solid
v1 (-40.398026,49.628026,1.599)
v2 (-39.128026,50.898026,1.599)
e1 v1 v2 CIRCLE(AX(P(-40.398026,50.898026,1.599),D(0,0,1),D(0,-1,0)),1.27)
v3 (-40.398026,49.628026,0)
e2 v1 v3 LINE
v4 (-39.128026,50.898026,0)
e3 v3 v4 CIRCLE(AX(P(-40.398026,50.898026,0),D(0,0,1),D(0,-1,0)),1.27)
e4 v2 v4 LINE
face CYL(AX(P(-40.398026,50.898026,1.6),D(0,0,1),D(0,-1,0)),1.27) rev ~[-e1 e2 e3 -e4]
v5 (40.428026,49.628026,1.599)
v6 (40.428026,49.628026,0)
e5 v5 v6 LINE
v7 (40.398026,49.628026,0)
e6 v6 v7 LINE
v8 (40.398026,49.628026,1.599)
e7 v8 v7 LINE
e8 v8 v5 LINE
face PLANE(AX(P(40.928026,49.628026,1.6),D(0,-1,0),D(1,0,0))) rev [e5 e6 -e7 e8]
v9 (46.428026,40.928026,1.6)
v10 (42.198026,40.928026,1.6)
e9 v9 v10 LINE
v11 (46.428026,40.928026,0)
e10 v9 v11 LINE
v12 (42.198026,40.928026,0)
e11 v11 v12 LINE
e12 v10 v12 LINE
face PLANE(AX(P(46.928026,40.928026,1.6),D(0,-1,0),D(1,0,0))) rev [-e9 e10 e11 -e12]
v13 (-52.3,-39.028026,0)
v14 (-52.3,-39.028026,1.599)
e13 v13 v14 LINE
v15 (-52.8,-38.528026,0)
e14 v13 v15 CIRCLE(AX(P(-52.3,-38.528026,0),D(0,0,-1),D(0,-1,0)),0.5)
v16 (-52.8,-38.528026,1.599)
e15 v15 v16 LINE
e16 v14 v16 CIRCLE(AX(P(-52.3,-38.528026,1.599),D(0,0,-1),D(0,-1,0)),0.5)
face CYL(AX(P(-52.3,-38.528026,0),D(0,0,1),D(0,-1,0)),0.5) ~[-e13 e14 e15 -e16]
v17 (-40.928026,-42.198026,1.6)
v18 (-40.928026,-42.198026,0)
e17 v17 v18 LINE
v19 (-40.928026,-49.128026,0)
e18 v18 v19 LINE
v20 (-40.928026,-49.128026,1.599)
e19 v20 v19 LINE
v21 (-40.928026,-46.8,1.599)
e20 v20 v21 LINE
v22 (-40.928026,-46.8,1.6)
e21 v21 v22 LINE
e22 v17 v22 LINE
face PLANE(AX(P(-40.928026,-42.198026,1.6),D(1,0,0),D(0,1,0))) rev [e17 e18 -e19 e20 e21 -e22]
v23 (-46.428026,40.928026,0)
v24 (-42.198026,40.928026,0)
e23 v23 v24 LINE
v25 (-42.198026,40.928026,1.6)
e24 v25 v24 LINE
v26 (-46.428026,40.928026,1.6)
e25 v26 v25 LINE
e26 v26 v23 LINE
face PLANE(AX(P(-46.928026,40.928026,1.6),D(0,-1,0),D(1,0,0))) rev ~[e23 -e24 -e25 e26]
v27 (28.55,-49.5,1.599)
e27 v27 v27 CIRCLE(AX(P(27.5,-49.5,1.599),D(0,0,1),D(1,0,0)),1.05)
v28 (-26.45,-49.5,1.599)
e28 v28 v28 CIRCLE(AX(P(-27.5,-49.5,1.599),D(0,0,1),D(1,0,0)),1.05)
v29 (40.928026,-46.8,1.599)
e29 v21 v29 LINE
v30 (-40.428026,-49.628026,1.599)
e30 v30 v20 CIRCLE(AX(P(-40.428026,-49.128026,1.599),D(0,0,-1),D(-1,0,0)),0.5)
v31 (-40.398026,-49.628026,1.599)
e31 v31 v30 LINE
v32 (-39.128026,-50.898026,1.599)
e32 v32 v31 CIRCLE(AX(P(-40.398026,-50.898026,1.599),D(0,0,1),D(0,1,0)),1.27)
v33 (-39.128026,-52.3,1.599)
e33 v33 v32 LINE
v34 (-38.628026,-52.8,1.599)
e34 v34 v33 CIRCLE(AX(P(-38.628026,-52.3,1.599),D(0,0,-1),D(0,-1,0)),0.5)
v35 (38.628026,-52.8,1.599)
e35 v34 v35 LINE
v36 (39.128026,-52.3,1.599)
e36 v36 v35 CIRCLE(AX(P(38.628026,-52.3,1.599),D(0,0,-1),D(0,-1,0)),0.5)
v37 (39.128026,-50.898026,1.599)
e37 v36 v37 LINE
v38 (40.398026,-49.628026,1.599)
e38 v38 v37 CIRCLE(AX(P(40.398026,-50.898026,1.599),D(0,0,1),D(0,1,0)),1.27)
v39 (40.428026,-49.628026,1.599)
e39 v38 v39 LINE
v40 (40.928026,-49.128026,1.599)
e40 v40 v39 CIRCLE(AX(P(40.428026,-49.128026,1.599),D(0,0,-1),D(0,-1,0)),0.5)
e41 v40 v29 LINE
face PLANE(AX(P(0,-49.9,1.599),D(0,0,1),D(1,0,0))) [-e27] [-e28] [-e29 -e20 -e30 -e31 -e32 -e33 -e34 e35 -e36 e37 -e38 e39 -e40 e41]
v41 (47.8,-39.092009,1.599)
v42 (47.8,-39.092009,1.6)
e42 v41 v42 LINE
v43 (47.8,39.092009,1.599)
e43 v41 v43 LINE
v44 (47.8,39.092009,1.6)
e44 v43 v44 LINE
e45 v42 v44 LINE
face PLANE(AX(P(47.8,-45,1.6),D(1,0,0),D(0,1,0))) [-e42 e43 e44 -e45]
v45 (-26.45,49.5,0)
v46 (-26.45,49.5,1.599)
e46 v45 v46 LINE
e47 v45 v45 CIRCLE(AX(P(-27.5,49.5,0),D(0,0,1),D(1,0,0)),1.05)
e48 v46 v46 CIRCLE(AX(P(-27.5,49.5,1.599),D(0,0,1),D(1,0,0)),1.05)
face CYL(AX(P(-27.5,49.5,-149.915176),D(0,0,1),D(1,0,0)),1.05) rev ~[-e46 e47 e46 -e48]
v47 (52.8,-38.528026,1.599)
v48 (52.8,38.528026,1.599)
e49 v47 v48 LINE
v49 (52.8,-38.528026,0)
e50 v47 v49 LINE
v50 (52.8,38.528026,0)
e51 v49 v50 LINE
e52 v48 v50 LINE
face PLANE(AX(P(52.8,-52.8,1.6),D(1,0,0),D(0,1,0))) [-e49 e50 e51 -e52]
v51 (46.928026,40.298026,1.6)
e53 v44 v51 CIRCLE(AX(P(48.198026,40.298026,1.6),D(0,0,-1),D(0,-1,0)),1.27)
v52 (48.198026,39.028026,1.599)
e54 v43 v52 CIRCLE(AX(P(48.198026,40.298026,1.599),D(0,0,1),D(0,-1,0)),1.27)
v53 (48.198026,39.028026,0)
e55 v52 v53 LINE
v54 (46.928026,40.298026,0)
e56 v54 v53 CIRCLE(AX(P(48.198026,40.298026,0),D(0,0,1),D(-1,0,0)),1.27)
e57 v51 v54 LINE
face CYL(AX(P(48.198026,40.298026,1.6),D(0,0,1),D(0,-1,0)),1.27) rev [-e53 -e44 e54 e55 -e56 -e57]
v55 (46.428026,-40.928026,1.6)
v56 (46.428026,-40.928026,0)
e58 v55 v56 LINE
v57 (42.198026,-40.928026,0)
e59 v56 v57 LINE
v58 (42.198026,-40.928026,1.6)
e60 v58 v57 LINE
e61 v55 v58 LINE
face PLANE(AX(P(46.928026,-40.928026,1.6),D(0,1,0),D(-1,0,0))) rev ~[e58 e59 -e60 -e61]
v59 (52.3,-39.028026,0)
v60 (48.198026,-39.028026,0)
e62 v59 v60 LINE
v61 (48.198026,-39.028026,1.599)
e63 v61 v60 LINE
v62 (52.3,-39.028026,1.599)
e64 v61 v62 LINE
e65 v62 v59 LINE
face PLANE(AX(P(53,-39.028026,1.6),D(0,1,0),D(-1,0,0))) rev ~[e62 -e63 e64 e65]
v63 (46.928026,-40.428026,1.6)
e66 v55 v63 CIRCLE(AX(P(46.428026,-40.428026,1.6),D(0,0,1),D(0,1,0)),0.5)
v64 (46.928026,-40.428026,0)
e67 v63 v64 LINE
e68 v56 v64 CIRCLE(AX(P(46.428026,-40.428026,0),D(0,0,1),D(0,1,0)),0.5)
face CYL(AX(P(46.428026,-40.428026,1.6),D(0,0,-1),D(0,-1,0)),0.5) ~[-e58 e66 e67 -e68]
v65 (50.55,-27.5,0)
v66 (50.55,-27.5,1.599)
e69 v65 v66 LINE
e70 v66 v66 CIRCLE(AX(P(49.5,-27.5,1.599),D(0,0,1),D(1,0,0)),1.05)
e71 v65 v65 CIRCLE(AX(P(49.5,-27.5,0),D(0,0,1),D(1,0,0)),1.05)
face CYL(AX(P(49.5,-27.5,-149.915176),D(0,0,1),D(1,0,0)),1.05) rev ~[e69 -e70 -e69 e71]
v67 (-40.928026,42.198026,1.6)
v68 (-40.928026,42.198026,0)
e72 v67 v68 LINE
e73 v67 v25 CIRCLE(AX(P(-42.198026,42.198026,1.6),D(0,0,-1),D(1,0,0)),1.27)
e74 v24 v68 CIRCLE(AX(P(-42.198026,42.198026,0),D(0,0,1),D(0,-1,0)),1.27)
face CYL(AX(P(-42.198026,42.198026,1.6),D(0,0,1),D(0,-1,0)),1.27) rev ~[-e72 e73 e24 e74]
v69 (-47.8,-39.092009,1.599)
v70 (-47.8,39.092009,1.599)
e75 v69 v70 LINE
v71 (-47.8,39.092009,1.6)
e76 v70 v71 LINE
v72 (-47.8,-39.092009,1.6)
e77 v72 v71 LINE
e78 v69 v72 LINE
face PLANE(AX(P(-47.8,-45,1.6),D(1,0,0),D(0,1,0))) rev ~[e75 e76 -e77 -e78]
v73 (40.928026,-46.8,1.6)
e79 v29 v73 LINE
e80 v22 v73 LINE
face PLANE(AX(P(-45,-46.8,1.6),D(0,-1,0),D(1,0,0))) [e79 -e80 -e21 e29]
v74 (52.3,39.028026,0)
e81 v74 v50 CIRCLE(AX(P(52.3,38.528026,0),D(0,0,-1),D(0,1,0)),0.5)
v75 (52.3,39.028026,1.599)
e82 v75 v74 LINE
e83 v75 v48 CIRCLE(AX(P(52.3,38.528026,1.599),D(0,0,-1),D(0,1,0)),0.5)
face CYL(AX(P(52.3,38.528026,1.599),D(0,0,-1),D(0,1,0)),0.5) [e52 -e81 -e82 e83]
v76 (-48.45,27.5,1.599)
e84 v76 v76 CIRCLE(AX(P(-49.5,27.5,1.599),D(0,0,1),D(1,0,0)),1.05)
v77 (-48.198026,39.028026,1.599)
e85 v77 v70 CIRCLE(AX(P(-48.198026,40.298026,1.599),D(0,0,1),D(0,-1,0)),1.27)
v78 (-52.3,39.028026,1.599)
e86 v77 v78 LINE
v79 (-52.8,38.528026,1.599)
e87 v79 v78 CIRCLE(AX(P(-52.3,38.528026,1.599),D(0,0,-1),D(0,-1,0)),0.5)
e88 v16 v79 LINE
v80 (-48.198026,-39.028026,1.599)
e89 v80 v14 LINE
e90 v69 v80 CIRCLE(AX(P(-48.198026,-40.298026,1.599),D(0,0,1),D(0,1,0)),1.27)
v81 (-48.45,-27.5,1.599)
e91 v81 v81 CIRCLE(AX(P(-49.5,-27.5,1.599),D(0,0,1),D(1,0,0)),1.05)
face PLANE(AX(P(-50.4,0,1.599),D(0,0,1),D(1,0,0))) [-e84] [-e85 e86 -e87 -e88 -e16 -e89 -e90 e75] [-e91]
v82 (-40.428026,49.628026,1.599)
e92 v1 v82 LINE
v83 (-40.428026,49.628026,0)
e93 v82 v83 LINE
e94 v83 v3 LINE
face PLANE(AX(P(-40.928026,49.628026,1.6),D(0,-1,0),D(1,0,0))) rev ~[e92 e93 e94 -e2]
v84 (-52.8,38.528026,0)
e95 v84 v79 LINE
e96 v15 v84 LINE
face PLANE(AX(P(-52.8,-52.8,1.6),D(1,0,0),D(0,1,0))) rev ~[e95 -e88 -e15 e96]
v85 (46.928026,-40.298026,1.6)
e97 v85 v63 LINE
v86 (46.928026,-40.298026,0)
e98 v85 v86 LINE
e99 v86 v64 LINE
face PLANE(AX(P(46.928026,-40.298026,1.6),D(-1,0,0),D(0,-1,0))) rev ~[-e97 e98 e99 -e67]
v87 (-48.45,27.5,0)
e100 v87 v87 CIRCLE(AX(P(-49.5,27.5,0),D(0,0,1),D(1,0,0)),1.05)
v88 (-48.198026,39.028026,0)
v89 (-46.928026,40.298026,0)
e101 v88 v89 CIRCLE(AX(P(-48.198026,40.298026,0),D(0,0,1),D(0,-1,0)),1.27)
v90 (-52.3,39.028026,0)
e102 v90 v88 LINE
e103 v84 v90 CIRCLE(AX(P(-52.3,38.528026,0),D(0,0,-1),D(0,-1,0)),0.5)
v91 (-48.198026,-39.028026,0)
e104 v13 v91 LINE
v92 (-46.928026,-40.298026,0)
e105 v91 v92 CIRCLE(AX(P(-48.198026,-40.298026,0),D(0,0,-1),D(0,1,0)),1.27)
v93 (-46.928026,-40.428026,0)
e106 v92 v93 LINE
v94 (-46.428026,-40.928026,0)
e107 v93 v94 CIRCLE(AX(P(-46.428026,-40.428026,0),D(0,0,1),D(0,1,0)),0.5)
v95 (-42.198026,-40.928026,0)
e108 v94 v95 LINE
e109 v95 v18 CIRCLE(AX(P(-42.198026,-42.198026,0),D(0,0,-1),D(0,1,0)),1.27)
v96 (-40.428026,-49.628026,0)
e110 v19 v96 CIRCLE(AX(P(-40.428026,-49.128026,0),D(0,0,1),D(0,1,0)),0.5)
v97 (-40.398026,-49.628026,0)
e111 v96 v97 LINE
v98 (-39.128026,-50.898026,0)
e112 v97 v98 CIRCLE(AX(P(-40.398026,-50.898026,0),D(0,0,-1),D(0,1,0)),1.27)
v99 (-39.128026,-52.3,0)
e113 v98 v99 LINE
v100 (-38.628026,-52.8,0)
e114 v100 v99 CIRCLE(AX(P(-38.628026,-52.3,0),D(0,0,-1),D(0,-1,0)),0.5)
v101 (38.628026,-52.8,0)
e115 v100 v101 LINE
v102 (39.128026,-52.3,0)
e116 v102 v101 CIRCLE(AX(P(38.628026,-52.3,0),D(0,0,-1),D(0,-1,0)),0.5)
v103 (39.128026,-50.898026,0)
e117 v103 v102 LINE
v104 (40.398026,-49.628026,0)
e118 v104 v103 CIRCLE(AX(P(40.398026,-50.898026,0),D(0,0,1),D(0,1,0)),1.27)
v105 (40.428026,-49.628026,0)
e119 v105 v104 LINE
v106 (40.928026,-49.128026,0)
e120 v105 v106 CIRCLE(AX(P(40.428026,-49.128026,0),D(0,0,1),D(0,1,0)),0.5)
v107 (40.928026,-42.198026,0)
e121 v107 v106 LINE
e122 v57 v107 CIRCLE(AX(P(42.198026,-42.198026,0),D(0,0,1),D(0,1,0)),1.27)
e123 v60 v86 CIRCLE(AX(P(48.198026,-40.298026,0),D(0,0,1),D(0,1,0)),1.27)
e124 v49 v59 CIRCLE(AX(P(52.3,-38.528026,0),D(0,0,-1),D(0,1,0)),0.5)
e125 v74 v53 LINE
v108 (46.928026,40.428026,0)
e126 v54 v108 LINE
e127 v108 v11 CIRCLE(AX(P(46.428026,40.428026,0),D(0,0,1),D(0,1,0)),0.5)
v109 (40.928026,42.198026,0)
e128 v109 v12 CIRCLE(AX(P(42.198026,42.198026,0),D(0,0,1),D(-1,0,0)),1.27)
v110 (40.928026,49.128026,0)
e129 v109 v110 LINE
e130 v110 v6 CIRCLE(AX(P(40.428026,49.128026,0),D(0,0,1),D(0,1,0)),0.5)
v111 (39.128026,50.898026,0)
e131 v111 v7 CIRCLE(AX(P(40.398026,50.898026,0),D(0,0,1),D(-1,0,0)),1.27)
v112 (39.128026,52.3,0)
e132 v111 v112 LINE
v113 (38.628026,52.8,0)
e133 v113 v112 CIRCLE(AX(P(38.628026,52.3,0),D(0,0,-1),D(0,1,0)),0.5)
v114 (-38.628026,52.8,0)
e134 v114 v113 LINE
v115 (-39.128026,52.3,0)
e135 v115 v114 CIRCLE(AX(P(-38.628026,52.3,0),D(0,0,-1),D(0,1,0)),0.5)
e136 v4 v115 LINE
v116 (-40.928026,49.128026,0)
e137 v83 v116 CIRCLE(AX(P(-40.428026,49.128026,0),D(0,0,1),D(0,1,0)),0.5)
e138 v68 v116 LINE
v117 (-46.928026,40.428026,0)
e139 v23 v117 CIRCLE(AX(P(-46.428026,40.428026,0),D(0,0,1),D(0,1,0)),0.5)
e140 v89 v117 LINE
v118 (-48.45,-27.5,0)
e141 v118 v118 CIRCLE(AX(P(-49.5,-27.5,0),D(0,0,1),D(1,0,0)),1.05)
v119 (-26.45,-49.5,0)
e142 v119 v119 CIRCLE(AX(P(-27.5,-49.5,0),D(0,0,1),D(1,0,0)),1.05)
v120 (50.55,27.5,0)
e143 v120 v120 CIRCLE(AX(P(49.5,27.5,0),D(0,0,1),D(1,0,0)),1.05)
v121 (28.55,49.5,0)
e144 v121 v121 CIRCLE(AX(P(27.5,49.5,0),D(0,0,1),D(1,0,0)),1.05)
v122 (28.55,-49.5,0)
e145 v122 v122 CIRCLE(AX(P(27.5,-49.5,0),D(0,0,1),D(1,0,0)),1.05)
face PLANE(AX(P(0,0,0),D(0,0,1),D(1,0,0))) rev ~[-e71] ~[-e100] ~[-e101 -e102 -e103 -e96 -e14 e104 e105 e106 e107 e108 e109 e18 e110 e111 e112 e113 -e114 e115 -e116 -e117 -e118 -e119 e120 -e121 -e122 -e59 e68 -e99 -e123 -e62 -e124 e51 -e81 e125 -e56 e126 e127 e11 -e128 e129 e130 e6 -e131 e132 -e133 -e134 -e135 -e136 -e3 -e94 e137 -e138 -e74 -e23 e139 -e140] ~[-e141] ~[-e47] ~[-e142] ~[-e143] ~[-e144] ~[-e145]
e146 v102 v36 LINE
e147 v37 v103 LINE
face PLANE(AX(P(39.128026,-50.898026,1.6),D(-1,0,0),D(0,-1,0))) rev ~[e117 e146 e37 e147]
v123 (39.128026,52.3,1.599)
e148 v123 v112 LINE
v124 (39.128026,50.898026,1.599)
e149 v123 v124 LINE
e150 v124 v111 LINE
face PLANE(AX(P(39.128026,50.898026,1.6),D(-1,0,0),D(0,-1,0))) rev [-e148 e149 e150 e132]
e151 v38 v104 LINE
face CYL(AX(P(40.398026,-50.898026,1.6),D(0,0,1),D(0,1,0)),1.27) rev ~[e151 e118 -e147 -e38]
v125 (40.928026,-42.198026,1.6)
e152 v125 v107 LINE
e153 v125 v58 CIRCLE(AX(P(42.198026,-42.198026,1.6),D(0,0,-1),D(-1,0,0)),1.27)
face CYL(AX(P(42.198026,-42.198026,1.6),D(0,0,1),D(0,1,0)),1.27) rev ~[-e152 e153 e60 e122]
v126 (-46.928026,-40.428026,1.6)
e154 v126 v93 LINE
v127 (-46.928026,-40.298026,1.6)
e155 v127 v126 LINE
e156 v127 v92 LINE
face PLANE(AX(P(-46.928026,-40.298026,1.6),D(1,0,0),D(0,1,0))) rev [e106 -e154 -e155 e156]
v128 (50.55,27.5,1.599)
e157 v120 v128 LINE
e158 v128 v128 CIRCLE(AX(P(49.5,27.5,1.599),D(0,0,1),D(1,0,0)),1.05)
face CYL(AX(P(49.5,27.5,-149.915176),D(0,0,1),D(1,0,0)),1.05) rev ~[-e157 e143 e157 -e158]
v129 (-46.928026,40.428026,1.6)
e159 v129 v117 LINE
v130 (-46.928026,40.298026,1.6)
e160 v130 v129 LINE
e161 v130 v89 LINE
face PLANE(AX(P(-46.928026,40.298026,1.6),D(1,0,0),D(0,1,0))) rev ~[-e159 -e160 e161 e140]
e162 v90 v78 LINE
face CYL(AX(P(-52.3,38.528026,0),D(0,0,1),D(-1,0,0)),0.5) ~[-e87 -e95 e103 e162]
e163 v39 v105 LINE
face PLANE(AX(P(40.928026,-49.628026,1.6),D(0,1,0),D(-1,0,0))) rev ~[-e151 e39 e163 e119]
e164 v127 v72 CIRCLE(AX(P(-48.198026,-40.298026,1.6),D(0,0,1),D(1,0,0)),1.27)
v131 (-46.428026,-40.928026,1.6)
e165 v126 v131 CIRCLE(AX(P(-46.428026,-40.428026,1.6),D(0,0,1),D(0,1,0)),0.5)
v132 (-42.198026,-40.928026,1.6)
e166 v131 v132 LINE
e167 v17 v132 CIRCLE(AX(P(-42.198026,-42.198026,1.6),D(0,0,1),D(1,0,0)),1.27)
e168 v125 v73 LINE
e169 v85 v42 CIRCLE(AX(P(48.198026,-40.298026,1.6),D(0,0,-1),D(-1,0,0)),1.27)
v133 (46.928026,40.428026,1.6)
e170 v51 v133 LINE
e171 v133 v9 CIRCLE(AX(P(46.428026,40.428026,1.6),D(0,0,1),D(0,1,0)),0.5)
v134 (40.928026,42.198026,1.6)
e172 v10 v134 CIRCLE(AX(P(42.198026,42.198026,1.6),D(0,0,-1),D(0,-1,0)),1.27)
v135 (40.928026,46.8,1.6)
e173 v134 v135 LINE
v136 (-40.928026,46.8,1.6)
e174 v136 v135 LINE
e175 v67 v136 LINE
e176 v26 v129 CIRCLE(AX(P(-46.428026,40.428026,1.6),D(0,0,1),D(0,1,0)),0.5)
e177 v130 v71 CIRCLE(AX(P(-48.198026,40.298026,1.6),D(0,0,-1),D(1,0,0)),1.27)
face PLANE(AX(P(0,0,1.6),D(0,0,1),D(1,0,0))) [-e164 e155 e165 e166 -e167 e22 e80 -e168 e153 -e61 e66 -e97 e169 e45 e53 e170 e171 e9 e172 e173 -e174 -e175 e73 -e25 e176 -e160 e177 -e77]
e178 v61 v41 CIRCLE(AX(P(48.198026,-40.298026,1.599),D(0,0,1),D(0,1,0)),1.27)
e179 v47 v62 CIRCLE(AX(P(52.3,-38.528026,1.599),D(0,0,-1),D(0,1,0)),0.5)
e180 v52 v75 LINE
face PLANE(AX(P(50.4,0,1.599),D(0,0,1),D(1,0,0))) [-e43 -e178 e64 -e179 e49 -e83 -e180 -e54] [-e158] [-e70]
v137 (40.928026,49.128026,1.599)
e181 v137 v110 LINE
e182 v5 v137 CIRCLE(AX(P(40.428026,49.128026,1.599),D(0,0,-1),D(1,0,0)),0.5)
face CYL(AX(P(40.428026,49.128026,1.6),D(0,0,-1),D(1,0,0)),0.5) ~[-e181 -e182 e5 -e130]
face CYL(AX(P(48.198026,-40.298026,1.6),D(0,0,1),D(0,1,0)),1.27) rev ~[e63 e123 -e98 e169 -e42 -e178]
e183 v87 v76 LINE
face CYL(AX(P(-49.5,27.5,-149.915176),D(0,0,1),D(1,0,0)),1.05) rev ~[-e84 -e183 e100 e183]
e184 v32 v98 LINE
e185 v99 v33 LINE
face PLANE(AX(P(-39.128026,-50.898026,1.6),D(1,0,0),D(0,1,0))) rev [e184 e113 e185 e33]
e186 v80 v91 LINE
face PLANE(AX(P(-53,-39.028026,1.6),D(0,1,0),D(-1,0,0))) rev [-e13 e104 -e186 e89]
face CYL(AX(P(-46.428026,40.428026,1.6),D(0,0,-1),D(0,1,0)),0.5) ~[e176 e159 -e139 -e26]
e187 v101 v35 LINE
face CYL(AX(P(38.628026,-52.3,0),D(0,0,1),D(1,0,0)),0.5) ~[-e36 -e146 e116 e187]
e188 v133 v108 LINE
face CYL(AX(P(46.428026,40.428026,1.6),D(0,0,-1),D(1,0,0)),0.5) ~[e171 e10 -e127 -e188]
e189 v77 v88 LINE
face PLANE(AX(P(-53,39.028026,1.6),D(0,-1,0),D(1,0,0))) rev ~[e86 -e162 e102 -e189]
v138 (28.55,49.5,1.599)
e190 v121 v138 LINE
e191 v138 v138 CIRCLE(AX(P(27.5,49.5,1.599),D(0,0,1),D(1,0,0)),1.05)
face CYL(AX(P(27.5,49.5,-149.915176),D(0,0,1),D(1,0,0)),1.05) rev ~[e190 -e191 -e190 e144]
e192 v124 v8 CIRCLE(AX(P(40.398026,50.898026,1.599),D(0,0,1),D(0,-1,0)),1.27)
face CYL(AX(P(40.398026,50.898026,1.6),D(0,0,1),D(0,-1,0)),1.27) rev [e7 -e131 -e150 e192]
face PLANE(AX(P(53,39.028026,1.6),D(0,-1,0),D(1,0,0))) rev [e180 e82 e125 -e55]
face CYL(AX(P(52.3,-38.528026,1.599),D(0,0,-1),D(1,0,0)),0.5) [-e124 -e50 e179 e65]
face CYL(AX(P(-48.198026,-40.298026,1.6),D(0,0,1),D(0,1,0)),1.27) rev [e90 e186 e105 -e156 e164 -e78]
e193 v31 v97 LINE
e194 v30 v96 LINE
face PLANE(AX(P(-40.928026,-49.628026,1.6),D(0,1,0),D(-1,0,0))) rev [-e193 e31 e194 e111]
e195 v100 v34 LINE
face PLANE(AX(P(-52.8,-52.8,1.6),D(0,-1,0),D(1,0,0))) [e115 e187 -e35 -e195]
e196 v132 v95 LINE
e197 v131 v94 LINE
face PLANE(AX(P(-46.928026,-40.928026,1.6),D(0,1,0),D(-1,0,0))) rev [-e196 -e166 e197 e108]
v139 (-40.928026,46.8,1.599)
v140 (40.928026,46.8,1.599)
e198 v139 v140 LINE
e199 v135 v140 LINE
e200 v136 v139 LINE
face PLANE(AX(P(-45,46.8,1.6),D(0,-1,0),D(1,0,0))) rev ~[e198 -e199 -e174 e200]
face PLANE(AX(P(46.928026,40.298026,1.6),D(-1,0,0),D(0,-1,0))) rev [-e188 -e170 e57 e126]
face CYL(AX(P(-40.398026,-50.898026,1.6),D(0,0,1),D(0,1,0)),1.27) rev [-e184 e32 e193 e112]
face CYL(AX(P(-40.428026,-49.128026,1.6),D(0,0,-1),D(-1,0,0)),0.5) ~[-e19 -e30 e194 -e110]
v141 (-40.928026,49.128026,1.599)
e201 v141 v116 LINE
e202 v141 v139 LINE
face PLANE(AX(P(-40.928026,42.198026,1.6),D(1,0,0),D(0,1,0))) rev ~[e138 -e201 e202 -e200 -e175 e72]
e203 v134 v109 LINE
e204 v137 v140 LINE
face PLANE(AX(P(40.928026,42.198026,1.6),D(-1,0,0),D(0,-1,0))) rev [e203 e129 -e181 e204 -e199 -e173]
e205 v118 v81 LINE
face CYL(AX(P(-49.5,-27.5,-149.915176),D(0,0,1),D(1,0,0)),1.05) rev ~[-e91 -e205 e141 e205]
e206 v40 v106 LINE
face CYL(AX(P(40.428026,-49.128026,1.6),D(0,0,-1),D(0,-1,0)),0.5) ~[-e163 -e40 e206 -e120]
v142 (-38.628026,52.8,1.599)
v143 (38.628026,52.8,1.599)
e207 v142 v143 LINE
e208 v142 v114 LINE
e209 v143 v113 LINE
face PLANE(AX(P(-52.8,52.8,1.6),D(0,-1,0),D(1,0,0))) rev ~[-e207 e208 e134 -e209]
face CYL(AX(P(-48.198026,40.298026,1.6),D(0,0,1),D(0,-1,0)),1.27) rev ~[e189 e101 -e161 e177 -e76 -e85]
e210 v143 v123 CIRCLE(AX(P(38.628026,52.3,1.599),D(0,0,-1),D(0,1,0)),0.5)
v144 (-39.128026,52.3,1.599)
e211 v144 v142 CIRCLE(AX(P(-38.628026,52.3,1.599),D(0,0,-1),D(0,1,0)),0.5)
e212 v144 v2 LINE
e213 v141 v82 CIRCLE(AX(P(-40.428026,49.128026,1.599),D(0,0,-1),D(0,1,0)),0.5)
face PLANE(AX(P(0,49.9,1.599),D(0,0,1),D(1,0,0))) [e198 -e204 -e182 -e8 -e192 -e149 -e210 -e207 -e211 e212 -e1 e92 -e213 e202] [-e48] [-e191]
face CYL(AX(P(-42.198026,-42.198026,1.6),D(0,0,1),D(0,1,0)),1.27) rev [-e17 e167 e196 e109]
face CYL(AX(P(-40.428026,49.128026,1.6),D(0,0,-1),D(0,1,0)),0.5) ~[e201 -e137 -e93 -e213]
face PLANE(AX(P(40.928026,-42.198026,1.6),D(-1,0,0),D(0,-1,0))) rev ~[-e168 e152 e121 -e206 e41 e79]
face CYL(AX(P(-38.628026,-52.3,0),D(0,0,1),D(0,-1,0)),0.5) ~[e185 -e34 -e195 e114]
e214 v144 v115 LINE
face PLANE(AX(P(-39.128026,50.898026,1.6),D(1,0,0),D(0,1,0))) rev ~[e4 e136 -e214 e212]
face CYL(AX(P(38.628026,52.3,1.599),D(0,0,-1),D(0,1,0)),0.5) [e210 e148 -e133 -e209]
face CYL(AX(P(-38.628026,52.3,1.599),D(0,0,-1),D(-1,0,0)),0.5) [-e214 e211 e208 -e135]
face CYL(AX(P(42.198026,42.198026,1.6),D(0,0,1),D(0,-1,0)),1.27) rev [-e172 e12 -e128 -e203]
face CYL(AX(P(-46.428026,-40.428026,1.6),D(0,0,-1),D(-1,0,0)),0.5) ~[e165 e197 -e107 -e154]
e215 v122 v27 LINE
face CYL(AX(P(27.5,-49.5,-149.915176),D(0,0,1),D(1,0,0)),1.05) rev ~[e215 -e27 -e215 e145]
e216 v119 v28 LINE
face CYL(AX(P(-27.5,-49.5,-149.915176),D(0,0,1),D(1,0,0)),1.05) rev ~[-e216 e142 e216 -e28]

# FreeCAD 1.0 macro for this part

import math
import FreeCAD as App
import Part
import Sketcher
Q = App.Units.Quantity


def edges_at(feature, points):
    """Names of the edges that pass closest to the given points."""
    edges = feature.Shape.Edges
    near = lambda p: min(range(len(edges)), key=lambda i: edges[i].distToShape(Part.Vertex(*p))[0])
    return sorted({f"Edge{near(p) + 1}" for p in points})


def add_polygon(sketch, points):
    """Adds a closed chain of lines whose ends are joined by coincident constraints."""
    first, n = sketch.GeometryCount, len(points)
    for a, b in zip(points, points[1:] + points[:1]):
        sketch.addGeometry(Part.LineSegment(App.Vector(*a, 0), App.Vector(*b, 0)), False)
    for i in range(n):
        sketch.addConstraint(Sketcher.Constraint("Coincident", first + i, 2, first + (i + 1) % n, 1))

doc = App.newDocument("Part")
params = doc.addObject("Spreadsheet::Sheet", "Params")
for row, (alias, value) in enumerate([
    ("sketch1_width", "106 mm"),
    ("pad1_length", "1.6 mm"),
    ("sketch2_width", "11.7 mm"),
    ("sketch3_height", "3 mm"),
    ("sketch3_width", "5.7 mm"),
    ("sketch3_width2", "1.8 mm"),
    ("sketch3_height2", "1.9 mm"),
    ("pocket2_length", "3.6 mm"),
    ("sketch4_radius", "1.27 mm"),
    ("sketch4_width", "0.53 mm"),
    ("sketch4_height", "7.43 mm"),
    ("sketch4_height2", "0.63 mm"),
    ("pocket3_length", "10 mm"),
    ("sketch5_width", "11.7 mm"),
    ("sketch6_height", "3 mm"),
    ("sketch6_width", "5.7 mm"),
    ("sketch6_width2", "1.8 mm"),
    ("sketch6_height2", "1.9 mm"),
    ("pocket5_length", "3.6 mm"),
    ("sketch7_radius", "1.27 mm"),
    ("sketch7_width", "0.53 mm"),
    ("sketch7_height", "7.43 mm"),
    ("sketch7_height2", "0.63 mm"),
    ("pocket6_length", "10 mm"),
    ("sketch8_width", "11.7 mm"),
    ("sketch9_height", "3 mm"),
    ("sketch9_width", "5.7 mm"),
    ("sketch9_width2", "1.8 mm"),
    ("sketch9_height2", "1.9 mm"),
    ("pocket8_length", "3.6 mm"),
    ("fillet_radius", "0.5 mm"),
    ("sketch10_diameter", "2.1 mm"),
    ("hole_diameter", "2.1 mm"),
    ("sketch11_width", "90 mm"),
    ("sketch11_width2", "5.2 mm"),
    ("sketch11_height", "6.2 mm"),
    ("pocket9_length", "0.001 mm"),
    ("sketch12_width", "105.6 mm"),
    ("fillet2_radius", "0.5 mm"),
], start=1):
    params.set(f"A{row}", alias)
    params.set(f"B{row}", "=" + value)
    params.setAlias(f"B{row}", alias)

body = doc.addObject("PartDesign::Body", "Body")

sketch1 = doc.addObject("Sketcher::SketchObject", "Sketch")
body.addObject(sketch1)
sketch1.AttachmentSupport = (doc.XY_Plane, [""])
sketch1.MapMode = "FlatFace"
add_polygon(sketch1, [(-53, 53), (-53, -53), (53, -53), (53, 53)])
sketch1.addConstraint([
    Sketcher.Constraint("Vertical", 0),
    Sketcher.Constraint("Horizontal", 1),
    Sketcher.Constraint("Vertical", 2),
    Sketcher.Constraint("Horizontal", 3),
    Sketcher.Constraint("Symmetric", 0, 2, 2, 2, -1, 1),
    Sketcher.Constraint("Equal", 3, 0),
    Sketcher.Constraint("DistanceX", 1, 1, 1, 2, Q("106 mm")),
])
sketch1.setExpression("Constraints[10]", "Params.sketch1_width")
pad1 = doc.addObject("PartDesign::Pad", "Pad")
body.addObject(pad1)
pad1.Profile = sketch1
pad1.setExpression("Length", "Params.pad1_length")

sketch2 = doc.addObject("Sketcher::SketchObject", "Sketch001")
body.addObject(sketch2)
sketch2.AttachmentSupport = (doc.XY_Plane, [""])
sketch2.MapMode = "FlatFace"
add_polygon(sketch2, [(-41, 53), (-41, 41), (-53, 41), (-53, 53)])
sketch2.addConstraint([
    Sketcher.Constraint("Vertical", 0),
    Sketcher.Constraint("Horizontal", 1),
    Sketcher.Constraint("Vertical", 2),
    Sketcher.Constraint("Horizontal", 3),
    Sketcher.Constraint("Equal", 3, 0),
    Sketcher.Constraint("DistanceX", 1, 2, 1, 1, Q("11.7 mm")),
    Sketcher.Constraint("DistanceX", 1, 2, -1, 1, Q("53 mm")),
    Sketcher.Constraint("DistanceY", -1, 1, 2, 2, Q("53 mm")),
])
sketch2.setExpression("Constraints[9]", "Params.sketch2_width")
pocket1 = doc.addObject("PartDesign::Pocket", "Pocket")
body.addObject(pocket1)
pocket1.Profile = sketch2
pocket1.Type = "ThroughAll"
pocket1.Reversed = True

sketch3 = doc.addObject("Sketcher::SketchObject", "Sketch002")
body.addObject(sketch3)
sketch3.AttachmentSupport = (doc.XY_Plane, [""])
sketch3.MapMode = "FlatFace"
sketch3.AttachmentOffset = App.Placement(App.Vector(0, 0, 2.6), App.Rotation())
add_polygon(sketch3, [(-47.3, 41.3), (-47.3, 39.4), (-53, 39.4), (-53, 41.3)])
add_polygon(sketch3, [(-39.5, 53), (-39.5, 50), (-41.3, 50), (-41.3, 53)])
sketch3.addConstraint([
    Sketcher.Constraint("Vertical", 0),
    Sketcher.Constraint("Horizontal", 1),
    Sketcher.Constraint("Vertical", 2),
    Sketcher.Constraint("Horizontal", 3),
    Sketcher.Constraint("Vertical", 4),
    Sketcher.Constraint("Horizontal", 5),
    Sketcher.Constraint("Vertical", 6),
    Sketcher.Constraint("Horizontal", 7),
    Sketcher.Constraint("DistanceY", 4, 2, 4, 1, Q("3 mm")),
    Sketcher.Constraint("DistanceX", 1, 2, 1, 1, Q("5.7 mm")),
    Sketcher.Constraint("DistanceX", 5, 2, 5, 1, Q("1.8 mm")),
    Sketcher.Constraint("DistanceY", 0, 2, 0, 1, Q("1.9 mm")),
    Sketcher.Constraint("DistanceX", 1, 2, -1, 1, Q("53 mm")),
    Sketcher.Constraint("DistanceY", -1, 1, 4, 2, Q("50 mm")),
    Sketcher.Constraint("DistanceX", 3, 2, 5, 2, Q("6 mm")),
    Sketcher.Constraint("DistanceY", -1, 1, 0, 2, Q("39.4 mm")),
])
sketch3.setExpression("Constraints[16]", "Params.sketch3_height")
sketch3.setExpression("Constraints[17]", "Params.sketch3_width")
sketch3.setExpression("Constraints[18]", "Params.sketch3_width2")
sketch3.setExpression("Constraints[19]", "Params.sketch3_height2")
pocket2 = doc.addObject("PartDesign::Pocket", "Pocket001")
body.addObject(pocket2)
pocket2.Profile = sketch3
pocket2.setExpression("Length", "Params.pocket2_length")

sketch4 = doc.addObject("Sketcher::SketchObject", "Sketch003")
body.addObject(sketch4)
sketch4.AttachmentSupport = (doc.XY_Plane, [""])
sketch4.MapMode = "FlatFace"
sketch4.AttachmentOffset = App.Placement(App.Vector(0, 0, 1.6), App.Rotation())
sketch4.addGeometry([
    Part.LineSegment(App.Vector(-40.9, 42.2, 0), App.Vector(-40.9, 49.6, 0)),
    Part.LineSegment(App.Vector(-40.9, 49.6, 0), App.Vector(-40.4, 49.6, 0)),
    Part.ArcOfCircle(Part.Circle(App.Vector(-40.4, 50.9, 0), App.Vector(0, 0, 1), 1.3), math.radians(-90), math.radians(0)),
    Part.LineSegment(App.Vector(-39.1, 50.9, 0), App.Vector(-39.1, 53, 0)),
    Part.LineSegment(App.Vector(-39.1, 53, 0), App.Vector(-53, 53, 0)),
    Part.LineSegment(App.Vector(-53, 53, 0), App.Vector(-53, 39, 0)),
    Part.LineSegment(App.Vector(-53, 39, 0), App.Vector(-48.2, 39, 0)),
    Part.ArcOfCircle(Part.Circle(App.Vector(-48.2, 40.3, 0), App.Vector(0, 0, 1), 1.3), math.radians(-90), math.radians(0)),
    Part.LineSegment(App.Vector(-46.9, 40.3, 0), App.Vector(-46.9, 40.9, 0)),
    Part.LineSegment(App.Vector(-46.9, 40.9, 0), App.Vector(-42.2, 40.9, 0)),
    Part.ArcOfCircle(Part.Circle(App.Vector(-42.2, 42.2, 0), App.Vector(0, 0, 1), 1.3), math.radians(-90), math.radians(0)),
], False)
sketch4.addConstraint([
    Sketcher.Constraint("Coincident", 0, 2, 1, 1),
    Sketcher.Constraint("Tangent", 1, 2, 2, 1),
    Sketcher.Constraint("Tangent", 2, 2, 3, 1),
    Sketcher.Constraint("Coincident", 3, 2, 4, 1),
    Sketcher.Constraint("Coincident", 4, 2, 5, 1),
    Sketcher.Constraint("Coincident", 5, 2, 6, 1),
    Sketcher.Constraint("Tangent", 6, 2, 7, 1),
    Sketcher.Constraint("Tangent", 7, 2, 8, 1),
    Sketcher.Constraint("Coincident", 8, 2, 9, 1),
    Sketcher.Constraint("Tangent", 9, 2, 10, 1),
    Sketcher.Constraint("Tangent", 10, 2, 0, 1),
    Sketcher.Constraint("Vertical", 0),
    Sketcher.Constraint("Horizontal", 1),
    Sketcher.Constraint("Vertical", 3),
    Sketcher.Constraint("Horizontal", 4),
    Sketcher.Constraint("Vertical", 5),
    Sketcher.Constraint("Horizontal", 6),
    Sketcher.Constraint("Vertical", 8),
    Sketcher.Constraint("Horizontal", 9),
    Sketcher.Constraint("Equal", 2, 7),
    Sketcher.Constraint("Equal", 7, 10),
    Sketcher.Constraint("Radius", 2, Q("1.27 mm")),
    Sketcher.Constraint("DistanceY", -1, 1, 3, 2, Q("53 mm")),
    Sketcher.Constraint("DistanceX", 4, 2, -1, 1, Q("53 mm")),
    Sketcher.Constraint("DistanceX", 7, 3, 10, 3, Q("6 mm")),
    Sketcher.Constraint("DistanceX", 1, 1, 1, 2, Q("0.53 mm")),
    Sketcher.Constraint("DistanceY", 0, 1, 0, 2, Q("7.43 mm")),
    Sketcher.Constraint("DistanceY", 8, 1, 8, 2, Q("0.63 mm")),
    Sketcher.Constraint("DistanceX", 4, 2, 4, 1, Q("13.871974 mm")),
    Sketcher.Constraint("DistanceY", 3, 1, 3, 2, Q("2.101974 mm")),
])
sketch4.setExpression("Constraints[21]", "Params.sketch4_radius")
sketch4.setExpression("Constraints[25]", "Params.sketch4_width")
sketch4.setExpression("Constraints[26]", "Params.sketch4_height")
sketch4.setExpression("Constraints[27]", "Params.sketch4_height2")
pocket3 = doc.addObject("PartDesign::Pocket", "Pocket002")
body.addObject(pocket3)
pocket3.Profile = sketch4
pocket3.setExpression("Length", "Params.pocket3_length")
doc.recompute()

mirrored = doc.addObject("PartDesign::Mirrored", "Mirrored")
body.addObject(mirrored)
mirrored.Originals = [pocket1, pocket2, pocket3]
mirrored.MirrorPlane = (doc.YZ_Plane, [""])
body.Tip = mirrored
doc.recompute()

mirrored2 = doc.addObject("PartDesign::Mirrored", "Mirrored001")
body.addObject(mirrored2)
mirrored2.Originals = [pocket3]
mirrored2.MirrorPlane = (doc.XZ_Plane, [""])
body.Tip = mirrored2

sketch5 = doc.addObject("Sketcher::SketchObject", "Sketch004")
body.addObject(sketch5)
sketch5.AttachmentSupport = (doc.XY_Plane, [""])
sketch5.MapMode = "FlatFace"
add_polygon(sketch5, [(41, -53), (41, -41), (53, -41), (53, -53)])
sketch5.addConstraint([
    Sketcher.Constraint("Vertical", 0),
    Sketcher.Constraint("Horizontal", 1),
    Sketcher.Constraint("Vertical", 2),
    Sketcher.Constraint("Horizontal", 3),
    Sketcher.Constraint("Equal", 3, 0),
    Sketcher.Constraint("DistanceX", 1, 1, 1, 2, Q("11.7 mm")),
    Sketcher.Constraint("DistanceX", -1, 1, 1, 2, Q("53 mm")),
    Sketcher.Constraint("DistanceY", 2, 2, -1, 1, Q("53 mm")),
])
sketch5.setExpression("Constraints[9]", "Params.sketch5_width")
pocket4 = doc.addObject("PartDesign::Pocket", "Pocket003")
body.addObject(pocket4)
pocket4.Profile = sketch5
pocket4.Type = "ThroughAll"
pocket4.Reversed = True

sketch6 = doc.addObject("Sketcher::SketchObject", "Sketch005")
body.addObject(sketch6)
sketch6.AttachmentSupport = (doc.XY_Plane, [""])
sketch6.MapMode = "FlatFace"
sketch6.AttachmentOffset = App.Placement(App.Vector(0, 0, 2.6), App.Rotation())
add_polygon(sketch6, [(47.3, -41.3), (47.3, -39.4), (53, -39.4), (53, -41.3)])
add_polygon(sketch6, [(39.5, -53), (39.5, -50), (41.3, -50), (41.3, -53)])
sketch6.addConstraint([
    Sketcher.Constraint("Vertical", 0),
    Sketcher.Constraint("Horizontal", 1),
    Sketcher.Constraint("Vertical", 2),
    Sketcher.Constraint("Horizontal", 3),
    Sketcher.Constraint("Vertical", 4),
    Sketcher.Constraint("Horizontal", 5),
    Sketcher.Constraint("Vertical", 6),
    Sketcher.Constraint("Horizontal", 7),
    Sketcher.Constraint("DistanceY", 4, 1, 4, 2, Q("3 mm")),
    Sketcher.Constraint("DistanceX", 1, 1, 1, 2, Q("5.7 mm")),
    Sketcher.Constraint("DistanceX", 5, 1, 5, 2, Q("1.8 mm")),
    Sketcher.Constraint("DistanceY", 0, 1, 0, 2, Q("1.9 mm")),
    Sketcher.Constraint("DistanceX", -1, 1, 1, 2, Q("53 mm")),
    Sketcher.Constraint("DistanceY", 4, 2, -1, 1, Q("50 mm")),
    Sketcher.Constraint("DistanceX", 5, 2, 3, 2, Q("6 mm")),
    Sketcher.Constraint("DistanceY", 0, 2, -1, 1, Q("39.4 mm")),
])
sketch6.setExpression("Constraints[16]", "Params.sketch6_height")
sketch6.setExpression("Constraints[17]", "Params.sketch6_width")
sketch6.setExpression("Constraints[18]", "Params.sketch6_width2")
sketch6.setExpression("Constraints[19]", "Params.sketch6_height2")
pocket5 = doc.addObject("PartDesign::Pocket", "Pocket004")
body.addObject(pocket5)
pocket5.Profile = sketch6
pocket5.setExpression("Length", "Params.pocket5_length")

sketch7 = doc.addObject("Sketcher::SketchObject", "Sketch006")
body.addObject(sketch7)
sketch7.AttachmentSupport = (doc.XY_Plane, [""])
sketch7.MapMode = "FlatFace"
sketch7.AttachmentOffset = App.Placement(App.Vector(0, 0, 1.6), App.Rotation())
sketch7.addGeometry([
    Part.LineSegment(App.Vector(40.9, -42.2, 0), App.Vector(40.9, -49.6, 0)),
    Part.LineSegment(App.Vector(40.9, -49.6, 0), App.Vector(40.4, -49.6, 0)),
    Part.ArcOfCircle(Part.Circle(App.Vector(40.4, -50.9, 0), App.Vector(0, 0, 1), 1.3), math.radians(90), math.radians(180)),
    Part.LineSegment(App.Vector(39.1, -50.9, 0), App.Vector(39.1, -53, 0)),
    Part.LineSegment(App.Vector(39.1, -53, 0), App.Vector(53, -53, 0)),
    Part.LineSegment(App.Vector(53, -53, 0), App.Vector(53, -39, 0)),
    Part.LineSegment(App.Vector(53, -39, 0), App.Vector(48.2, -39, 0)),
    Part.ArcOfCircle(Part.Circle(App.Vector(48.2, -40.3, 0), App.Vector(0, 0, 1), 1.3), math.radians(90), math.radians(180)),
    Part.LineSegment(App.Vector(46.9, -40.3, 0), App.Vector(46.9, -40.9, 0)),
    Part.LineSegment(App.Vector(46.9, -40.9, 0), App.Vector(42.2, -40.9, 0)),
    Part.ArcOfCircle(Part.Circle(App.Vector(42.2, -42.2, 0), App.Vector(0, 0, 1), 1.3), math.radians(90), math.radians(180)),
], False)
sketch7.addConstraint([
    Sketcher.Constraint("Coincident", 0, 2, 1, 1),
    Sketcher.Constraint("Tangent", 1, 2, 2, 1),
    Sketcher.Constraint("Tangent", 2, 2, 3, 1),
    Sketcher.Constraint("Coincident", 3, 2, 4, 1),
    Sketcher.Constraint("Coincident", 4, 2, 5, 1),
    Sketcher.Constraint("Coincident", 5, 2, 6, 1),
    Sketcher.Constraint("Tangent", 6, 2, 7, 1),
    Sketcher.Constraint("Tangent", 7, 2, 8, 1),
    Sketcher.Constraint("Coincident", 8, 2, 9, 1),
    Sketcher.Constraint("Tangent", 9, 2, 10, 1),
    Sketcher.Constraint("Tangent", 10, 2, 0, 1),
    Sketcher.Constraint("Vertical", 0),
    Sketcher.Constraint("Horizontal", 1),
    Sketcher.Constraint("Vertical", 3),
    Sketcher.Constraint("Horizontal", 4),
    Sketcher.Constraint("Vertical", 5),
    Sketcher.Constraint("Horizontal", 6),
    Sketcher.Constraint("Vertical", 8),
    Sketcher.Constraint("Horizontal", 9),
    Sketcher.Constraint("Equal", 2, 7),
    Sketcher.Constraint("Equal", 7, 10),
    Sketcher.Constraint("Radius", 2, Q("1.27 mm")),
    Sketcher.Constraint("DistanceY", 3, 2, -1, 1, Q("53 mm")),
    Sketcher.Constraint("DistanceX", -1, 1, 4, 2, Q("53 mm")),
    Sketcher.Constraint("DistanceX", 10, 3, 7, 3, Q("6 mm")),
    Sketcher.Constraint("DistanceX", 1, 2, 1, 1, Q("0.53 mm")),
    Sketcher.Constraint("DistanceY", 0, 2, 0, 1, Q("7.43 mm")),
    Sketcher.Constraint("DistanceY", 8, 2, 8, 1, Q("0.63 mm")),
    Sketcher.Constraint("DistanceX", 4, 1, 4, 2, Q("13.871974 mm")),
    Sketcher.Constraint("DistanceY", 3, 2, 3, 1, Q("2.101974 mm")),
])
sketch7.setExpression("Constraints[21]", "Params.sketch7_radius")
sketch7.setExpression("Constraints[25]", "Params.sketch7_width")
sketch7.setExpression("Constraints[26]", "Params.sketch7_height")
sketch7.setExpression("Constraints[27]", "Params.sketch7_height2")
pocket6 = doc.addObject("PartDesign::Pocket", "Pocket005")
body.addObject(pocket6)
pocket6.Profile = sketch7
pocket6.setExpression("Length", "Params.pocket6_length")

sketch8 = doc.addObject("Sketcher::SketchObject", "Sketch007")
body.addObject(sketch8)
sketch8.AttachmentSupport = (doc.XY_Plane, [""])
sketch8.MapMode = "FlatFace"
add_polygon(sketch8, [(-41, -41), (-41, -53), (-53, -53), (-53, -41)])
sketch8.addConstraint([
    Sketcher.Constraint("Vertical", 0),
    Sketcher.Constraint("Horizontal", 1),
    Sketcher.Constraint("Vertical", 2),
    Sketcher.Constraint("Horizontal", 3),
    Sketcher.Constraint("Equal", 3, 0),
    Sketcher.Constraint("DistanceX", 1, 2, 1, 1, Q("11.7 mm")),
    Sketcher.Constraint("DistanceY", 0, 2, -1, 1, Q("53 mm")),
    Sketcher.Constraint("DistanceX", 1, 2, -1, 1, Q("53 mm")),
])
sketch8.setExpression("Constraints[9]", "Params.sketch8_width")
pocket7 = doc.addObject("PartDesign::Pocket", "Pocket006")
body.addObject(pocket7)
pocket7.Profile = sketch8
pocket7.Type = "ThroughAll"
pocket7.Reversed = True

sketch9 = doc.addObject("Sketcher::SketchObject", "Sketch008")
body.addObject(sketch9)
sketch9.AttachmentSupport = (doc.XY_Plane, [""])
sketch9.MapMode = "FlatFace"
sketch9.AttachmentOffset = App.Placement(App.Vector(0, 0, 2.6), App.Rotation())
add_polygon(sketch9, [(-47.3, -39.4), (-47.3, -41.3), (-53, -41.3), (-53, -39.4)])
add_polygon(sketch9, [(-39.5, -50), (-39.5, -53), (-41.3, -53), (-41.3, -50)])
sketch9.addConstraint([
    Sketcher.Constraint("Vertical", 0),
    Sketcher.Constraint("Horizontal", 1),
    Sketcher.Constraint("Vertical", 2),
    Sketcher.Constraint("Horizontal", 3),
    Sketcher.Constraint("Vertical", 4),
    Sketcher.Constraint("Horizontal", 5),
    Sketcher.Constraint("Vertical", 6),
    Sketcher.Constraint("Horizontal", 7),
    Sketcher.Constraint("DistanceY", 4, 2, 4, 1, Q("3 mm")),
    Sketcher.Constraint("DistanceX", 1, 2, 1, 1, Q("5.7 mm")),
    Sketcher.Constraint("DistanceX", 5, 2, 5, 1, Q("1.8 mm")),
    Sketcher.Constraint("DistanceY", 0, 2, 0, 1, Q("1.9 mm")),
    Sketcher.Constraint("DistanceX", 1, 2, -1, 1, Q("53 mm")),
    Sketcher.Constraint("DistanceY", 4, 2, -1, 1, Q("53 mm")),
    Sketcher.Constraint("DistanceX", 0, 2, 5, 2, Q("6 mm")),
    Sketcher.Constraint("DistanceY", 0, 2, -1, 1, Q("41.3 mm")),
])
sketch9.setExpression("Constraints[16]", "Params.sketch9_height")
sketch9.setExpression("Constraints[17]", "Params.sketch9_width")
sketch9.setExpression("Constraints[18]", "Params.sketch9_width2")
sketch9.setExpression("Constraints[19]", "Params.sketch9_height2")
pocket8 = doc.addObject("PartDesign::Pocket", "Pocket007")
body.addObject(pocket8)
pocket8.Profile = sketch9
pocket8.setExpression("Length", "Params.pocket8_length")
doc.recompute()

fillet = doc.addObject("PartDesign::Fillet", "Fillet")
body.addObject(fillet)
fillet.Base = (pocket8, edges_at(pocket8, [
    (40.928, 49.628, 0.8),
    (46.928, 40.928, 0.8),
    (46.928, -40.928, 0.8),
    (40.928, -49.628, 0.8),
    (-40.928, -49.628, 0.8),
    (-46.928, -40.928, 0.8),
    (-46.928, 40.928, 0.8),
    (-40.928, 49.628, 0.8),
]))
fillet.setExpression("Radius", "Params.fillet_radius")

sketch10 = doc.addObject("Sketcher::SketchObject", "Sketch009")
body.addObject(sketch10)
sketch10.AttachmentSupport = (doc.XY_Plane, [""])
sketch10.MapMode = "FlatFace"
sketch10.addGeometry([
    Part.Circle(App.Vector(-49.5, -27.5, 0), App.Vector(0, 0, 1), 1.1),
    Part.Circle(App.Vector(-27.5, -49.5, 0), App.Vector(0, 0, 1), 1.1),
    Part.Circle(App.Vector(49.5, -27.5, 0), App.Vector(0, 0, 1), 1.1),
    Part.Circle(App.Vector(27.5, -49.5, 0), App.Vector(0, 0, 1), 1.1),
    Part.Circle(App.Vector(27.5, 49.5, 0), App.Vector(0, 0, 1), 1.1),
    Part.Circle(App.Vector(49.5, 27.5, 0), App.Vector(0, 0, 1), 1.1),
    Part.Circle(App.Vector(-27.5, 49.5, 0), App.Vector(0, 0, 1), 1.1),
    Part.Circle(App.Vector(-49.5, 27.5, 0), App.Vector(0, 0, 1), 1.1),
], False)
sketch10.addConstraint([
    Sketcher.Constraint("Equal", 0, 1),
    Sketcher.Constraint("Equal", 1, 2),
    Sketcher.Constraint("Equal", 2, 3),
    Sketcher.Constraint("Equal", 3, 4),
    Sketcher.Constraint("Equal", 4, 5),
    Sketcher.Constraint("Equal", 5, 6),
    Sketcher.Constraint("Equal", 6, 7),
    Sketcher.Constraint("Symmetric", 1, 3, 4, 3, -1, 1),
    Sketcher.Constraint("Symmetric", 0, 3, 5, 3, -1, 1),
    Sketcher.Constraint("Symmetric", 3, 3, 6, 3, -1, 1),
    Sketcher.Constraint("Symmetric", 2, 3, 7, 3, -1, 1),
    Sketcher.Constraint("Symmetric", 0, 3, 2, 3, -2),
    Sketcher.Constraint("Symmetric", 1, 3, 3, 3, -2),
    Sketcher.Constraint("Diameter", 0, Q("2.1 mm")),
    Sketcher.Constraint("DistanceX", 0, 3, 1, 3, Q("22 mm")),
    Sketcher.Constraint("DistanceY", 1, 3, 0, 3, Q("22 mm")),
    Sketcher.Constraint("DistanceX", 1, 3, 2, 3, Q("77 mm")),
    Sketcher.Constraint("DistanceY", 2, 3, 4, 3, Q("77 mm")),
])
sketch10.setExpression("Constraints[13]", "Params.sketch10_diameter")
doc.recompute()
hole = doc.addObject("PartDesign::Hole", "Hole")
body.addObject(hole)
hole.Profile = sketch10
hole.ThreadType = "None"
hole.setExpression("Diameter", "Params.hole_diameter")
hole.DepthType = "ThroughAll"
hole.Reversed = True

sketch11 = doc.addObject("Sketcher::SketchObject", "Sketch010")
body.addObject(sketch11)
sketch11.AttachmentSupport = (doc.XY_Plane, [""])
sketch11.MapMode = "FlatFace"
sketch11.AttachmentOffset = App.Placement(App.Vector(0, 0, 1.6), App.Rotation())
add_polygon(sketch11, [(-45, -47), (-45, -53), (45, -53), (45, -47)])
add_polygon(sketch11, [(-45, 53), (-45, 47), (45, 47), (45, 53)])
add_polygon(sketch11, [(-53, 45), (-53, -45), (-48, -45), (-48, 45)])
add_polygon(sketch11, [(48, 45), (48, -45), (53, -45), (53, 45)])
sketch11.addConstraint([
    Sketcher.Constraint("Vertical", 0),
    Sketcher.Constraint("Horizontal", 1),
    Sketcher.Constraint("Vertical", 2),
    Sketcher.Constraint("Horizontal", 3),
    Sketcher.Constraint("Vertical", 4),
    Sketcher.Constraint("Horizontal", 5),
    Sketcher.Constraint("Vertical", 6),
    Sketcher.Constraint("Horizontal", 7),
    Sketcher.Constraint("Vertical", 8),
    Sketcher.Constraint("Horizontal", 9),
    Sketcher.Constraint("Vertical", 10),
    Sketcher.Constraint("Horizontal", 11),
    Sketcher.Constraint("Vertical", 12),
    Sketcher.Constraint("Horizontal", 13),
    Sketcher.Constraint("Vertical", 14),
    Sketcher.Constraint("Horizontal", 15),
    Sketcher.Constraint("Symmetric", 2, 2, 4, 2, -1, 1),
    Sketcher.Constraint("Symmetric", 0, 2, 6, 2, -1, 1),
    Sketcher.Constraint("Symmetric", 10, 2, 12, 2, -1, 1),
    Sketcher.Constraint("Symmetric", 8, 2, 14, 2, -1, 1),
    Sketcher.Constraint("Horizontal", 9, 2, 12, 2),
    Sketcher.Constraint("Vertical", 3, 2, 4, 2),
    Sketcher.Constraint("Equal", 7, 8),
    Sketcher.Constraint("DistanceX", 1, 1, 1, 2, Q("90 mm")),
    Sketcher.Constraint("DistanceX", 9, 1, 9, 2, Q("5.2 mm")),
    Sketcher.Constraint("DistanceY", 0, 2, 0, 1, Q("6.2 mm")),
    Sketcher.Constraint("DistanceY", 0, 2, -1, 1, Q("53 mm")),
    Sketcher.Constraint("DistanceX", 8, 2, -1, 1, Q("53 mm")),
])
sketch11.setExpression("Constraints[39]", "Params.sketch11_width")
sketch11.setExpression("Constraints[40]", "Params.sketch11_width2")
sketch11.setExpression("Constraints[41]", "Params.sketch11_height")
pocket9 = doc.addObject("PartDesign::Pocket", "Pocket008")
body.addObject(pocket9)
pocket9.Profile = sketch11
pocket9.setExpression("Length", "Params.pocket9_length")

sketch12 = doc.addObject("Sketcher::SketchObject", "Sketch011")
body.addObject(sketch12)
sketch12.AttachmentSupport = (doc.XY_Plane, [""])
sketch12.MapMode = "FlatFace"
sketch12.AttachmentOffset = App.Placement(App.Vector(0, 0, 1.6), App.Rotation())
add_polygon(sketch12, [(-69, 69), (-69, -69), (69, -69), (69, 69)])
add_polygon(sketch12, [(53, -53), (-53, -53), (-53, 53), (53, 53)])
sketch12.addConstraint([
    Sketcher.Constraint("Vertical", 0),
    Sketcher.Constraint("Horizontal", 1),
    Sketcher.Constraint("Vertical", 2),
    Sketcher.Constraint("Horizontal", 3),
    Sketcher.Constraint("Horizontal", 4),
    Sketcher.Constraint("Vertical", 5),
    Sketcher.Constraint("Horizontal", 6),
    Sketcher.Constraint("Vertical", 7),
    Sketcher.Constraint("Symmetric", 0, 2, 2, 2, -1, 1),
    Sketcher.Constraint("Symmetric", 4, 2, 6, 2, -1, 1),
    Sketcher.Constraint("Equal", 3, 0),
    Sketcher.Constraint("Equal", 6, 5),
    Sketcher.Constraint("DistanceX", 4, 2, 4, 1, Q("105.6 mm")),
    Sketcher.Constraint("DistanceX", 1, 1, 1, 2, Q("137.984 mm")),
])
sketch12.setExpression("Constraints[20]", "Params.sketch12_width")
pocket10 = doc.addObject("PartDesign::Pocket", "Pocket009")
body.addObject(pocket10)
pocket10.Profile = sketch12
pocket10.Type = "ThroughAll"
doc.recompute()

fillet2 = doc.addObject("PartDesign::Fillet", "Fillet001")
body.addObject(fillet2)
fillet2.Base = (pocket10, edges_at(pocket10, [
    (-52.8, -39.028, 0.799),
    (-39.128, -52.8, 0.799),
    (52.8, -39.028, 0.799),
    (39.128, 52.8, 0.799),
    (52.8, 39.028, 0.799),
    (39.128, -52.8, 0.799),
    (-52.8, 39.028, 0.799),
    (-39.128, 52.8, 0.799),
]))
fillet2.setExpression("Radius", "Params.fillet2_radius")

doc.recompute()
